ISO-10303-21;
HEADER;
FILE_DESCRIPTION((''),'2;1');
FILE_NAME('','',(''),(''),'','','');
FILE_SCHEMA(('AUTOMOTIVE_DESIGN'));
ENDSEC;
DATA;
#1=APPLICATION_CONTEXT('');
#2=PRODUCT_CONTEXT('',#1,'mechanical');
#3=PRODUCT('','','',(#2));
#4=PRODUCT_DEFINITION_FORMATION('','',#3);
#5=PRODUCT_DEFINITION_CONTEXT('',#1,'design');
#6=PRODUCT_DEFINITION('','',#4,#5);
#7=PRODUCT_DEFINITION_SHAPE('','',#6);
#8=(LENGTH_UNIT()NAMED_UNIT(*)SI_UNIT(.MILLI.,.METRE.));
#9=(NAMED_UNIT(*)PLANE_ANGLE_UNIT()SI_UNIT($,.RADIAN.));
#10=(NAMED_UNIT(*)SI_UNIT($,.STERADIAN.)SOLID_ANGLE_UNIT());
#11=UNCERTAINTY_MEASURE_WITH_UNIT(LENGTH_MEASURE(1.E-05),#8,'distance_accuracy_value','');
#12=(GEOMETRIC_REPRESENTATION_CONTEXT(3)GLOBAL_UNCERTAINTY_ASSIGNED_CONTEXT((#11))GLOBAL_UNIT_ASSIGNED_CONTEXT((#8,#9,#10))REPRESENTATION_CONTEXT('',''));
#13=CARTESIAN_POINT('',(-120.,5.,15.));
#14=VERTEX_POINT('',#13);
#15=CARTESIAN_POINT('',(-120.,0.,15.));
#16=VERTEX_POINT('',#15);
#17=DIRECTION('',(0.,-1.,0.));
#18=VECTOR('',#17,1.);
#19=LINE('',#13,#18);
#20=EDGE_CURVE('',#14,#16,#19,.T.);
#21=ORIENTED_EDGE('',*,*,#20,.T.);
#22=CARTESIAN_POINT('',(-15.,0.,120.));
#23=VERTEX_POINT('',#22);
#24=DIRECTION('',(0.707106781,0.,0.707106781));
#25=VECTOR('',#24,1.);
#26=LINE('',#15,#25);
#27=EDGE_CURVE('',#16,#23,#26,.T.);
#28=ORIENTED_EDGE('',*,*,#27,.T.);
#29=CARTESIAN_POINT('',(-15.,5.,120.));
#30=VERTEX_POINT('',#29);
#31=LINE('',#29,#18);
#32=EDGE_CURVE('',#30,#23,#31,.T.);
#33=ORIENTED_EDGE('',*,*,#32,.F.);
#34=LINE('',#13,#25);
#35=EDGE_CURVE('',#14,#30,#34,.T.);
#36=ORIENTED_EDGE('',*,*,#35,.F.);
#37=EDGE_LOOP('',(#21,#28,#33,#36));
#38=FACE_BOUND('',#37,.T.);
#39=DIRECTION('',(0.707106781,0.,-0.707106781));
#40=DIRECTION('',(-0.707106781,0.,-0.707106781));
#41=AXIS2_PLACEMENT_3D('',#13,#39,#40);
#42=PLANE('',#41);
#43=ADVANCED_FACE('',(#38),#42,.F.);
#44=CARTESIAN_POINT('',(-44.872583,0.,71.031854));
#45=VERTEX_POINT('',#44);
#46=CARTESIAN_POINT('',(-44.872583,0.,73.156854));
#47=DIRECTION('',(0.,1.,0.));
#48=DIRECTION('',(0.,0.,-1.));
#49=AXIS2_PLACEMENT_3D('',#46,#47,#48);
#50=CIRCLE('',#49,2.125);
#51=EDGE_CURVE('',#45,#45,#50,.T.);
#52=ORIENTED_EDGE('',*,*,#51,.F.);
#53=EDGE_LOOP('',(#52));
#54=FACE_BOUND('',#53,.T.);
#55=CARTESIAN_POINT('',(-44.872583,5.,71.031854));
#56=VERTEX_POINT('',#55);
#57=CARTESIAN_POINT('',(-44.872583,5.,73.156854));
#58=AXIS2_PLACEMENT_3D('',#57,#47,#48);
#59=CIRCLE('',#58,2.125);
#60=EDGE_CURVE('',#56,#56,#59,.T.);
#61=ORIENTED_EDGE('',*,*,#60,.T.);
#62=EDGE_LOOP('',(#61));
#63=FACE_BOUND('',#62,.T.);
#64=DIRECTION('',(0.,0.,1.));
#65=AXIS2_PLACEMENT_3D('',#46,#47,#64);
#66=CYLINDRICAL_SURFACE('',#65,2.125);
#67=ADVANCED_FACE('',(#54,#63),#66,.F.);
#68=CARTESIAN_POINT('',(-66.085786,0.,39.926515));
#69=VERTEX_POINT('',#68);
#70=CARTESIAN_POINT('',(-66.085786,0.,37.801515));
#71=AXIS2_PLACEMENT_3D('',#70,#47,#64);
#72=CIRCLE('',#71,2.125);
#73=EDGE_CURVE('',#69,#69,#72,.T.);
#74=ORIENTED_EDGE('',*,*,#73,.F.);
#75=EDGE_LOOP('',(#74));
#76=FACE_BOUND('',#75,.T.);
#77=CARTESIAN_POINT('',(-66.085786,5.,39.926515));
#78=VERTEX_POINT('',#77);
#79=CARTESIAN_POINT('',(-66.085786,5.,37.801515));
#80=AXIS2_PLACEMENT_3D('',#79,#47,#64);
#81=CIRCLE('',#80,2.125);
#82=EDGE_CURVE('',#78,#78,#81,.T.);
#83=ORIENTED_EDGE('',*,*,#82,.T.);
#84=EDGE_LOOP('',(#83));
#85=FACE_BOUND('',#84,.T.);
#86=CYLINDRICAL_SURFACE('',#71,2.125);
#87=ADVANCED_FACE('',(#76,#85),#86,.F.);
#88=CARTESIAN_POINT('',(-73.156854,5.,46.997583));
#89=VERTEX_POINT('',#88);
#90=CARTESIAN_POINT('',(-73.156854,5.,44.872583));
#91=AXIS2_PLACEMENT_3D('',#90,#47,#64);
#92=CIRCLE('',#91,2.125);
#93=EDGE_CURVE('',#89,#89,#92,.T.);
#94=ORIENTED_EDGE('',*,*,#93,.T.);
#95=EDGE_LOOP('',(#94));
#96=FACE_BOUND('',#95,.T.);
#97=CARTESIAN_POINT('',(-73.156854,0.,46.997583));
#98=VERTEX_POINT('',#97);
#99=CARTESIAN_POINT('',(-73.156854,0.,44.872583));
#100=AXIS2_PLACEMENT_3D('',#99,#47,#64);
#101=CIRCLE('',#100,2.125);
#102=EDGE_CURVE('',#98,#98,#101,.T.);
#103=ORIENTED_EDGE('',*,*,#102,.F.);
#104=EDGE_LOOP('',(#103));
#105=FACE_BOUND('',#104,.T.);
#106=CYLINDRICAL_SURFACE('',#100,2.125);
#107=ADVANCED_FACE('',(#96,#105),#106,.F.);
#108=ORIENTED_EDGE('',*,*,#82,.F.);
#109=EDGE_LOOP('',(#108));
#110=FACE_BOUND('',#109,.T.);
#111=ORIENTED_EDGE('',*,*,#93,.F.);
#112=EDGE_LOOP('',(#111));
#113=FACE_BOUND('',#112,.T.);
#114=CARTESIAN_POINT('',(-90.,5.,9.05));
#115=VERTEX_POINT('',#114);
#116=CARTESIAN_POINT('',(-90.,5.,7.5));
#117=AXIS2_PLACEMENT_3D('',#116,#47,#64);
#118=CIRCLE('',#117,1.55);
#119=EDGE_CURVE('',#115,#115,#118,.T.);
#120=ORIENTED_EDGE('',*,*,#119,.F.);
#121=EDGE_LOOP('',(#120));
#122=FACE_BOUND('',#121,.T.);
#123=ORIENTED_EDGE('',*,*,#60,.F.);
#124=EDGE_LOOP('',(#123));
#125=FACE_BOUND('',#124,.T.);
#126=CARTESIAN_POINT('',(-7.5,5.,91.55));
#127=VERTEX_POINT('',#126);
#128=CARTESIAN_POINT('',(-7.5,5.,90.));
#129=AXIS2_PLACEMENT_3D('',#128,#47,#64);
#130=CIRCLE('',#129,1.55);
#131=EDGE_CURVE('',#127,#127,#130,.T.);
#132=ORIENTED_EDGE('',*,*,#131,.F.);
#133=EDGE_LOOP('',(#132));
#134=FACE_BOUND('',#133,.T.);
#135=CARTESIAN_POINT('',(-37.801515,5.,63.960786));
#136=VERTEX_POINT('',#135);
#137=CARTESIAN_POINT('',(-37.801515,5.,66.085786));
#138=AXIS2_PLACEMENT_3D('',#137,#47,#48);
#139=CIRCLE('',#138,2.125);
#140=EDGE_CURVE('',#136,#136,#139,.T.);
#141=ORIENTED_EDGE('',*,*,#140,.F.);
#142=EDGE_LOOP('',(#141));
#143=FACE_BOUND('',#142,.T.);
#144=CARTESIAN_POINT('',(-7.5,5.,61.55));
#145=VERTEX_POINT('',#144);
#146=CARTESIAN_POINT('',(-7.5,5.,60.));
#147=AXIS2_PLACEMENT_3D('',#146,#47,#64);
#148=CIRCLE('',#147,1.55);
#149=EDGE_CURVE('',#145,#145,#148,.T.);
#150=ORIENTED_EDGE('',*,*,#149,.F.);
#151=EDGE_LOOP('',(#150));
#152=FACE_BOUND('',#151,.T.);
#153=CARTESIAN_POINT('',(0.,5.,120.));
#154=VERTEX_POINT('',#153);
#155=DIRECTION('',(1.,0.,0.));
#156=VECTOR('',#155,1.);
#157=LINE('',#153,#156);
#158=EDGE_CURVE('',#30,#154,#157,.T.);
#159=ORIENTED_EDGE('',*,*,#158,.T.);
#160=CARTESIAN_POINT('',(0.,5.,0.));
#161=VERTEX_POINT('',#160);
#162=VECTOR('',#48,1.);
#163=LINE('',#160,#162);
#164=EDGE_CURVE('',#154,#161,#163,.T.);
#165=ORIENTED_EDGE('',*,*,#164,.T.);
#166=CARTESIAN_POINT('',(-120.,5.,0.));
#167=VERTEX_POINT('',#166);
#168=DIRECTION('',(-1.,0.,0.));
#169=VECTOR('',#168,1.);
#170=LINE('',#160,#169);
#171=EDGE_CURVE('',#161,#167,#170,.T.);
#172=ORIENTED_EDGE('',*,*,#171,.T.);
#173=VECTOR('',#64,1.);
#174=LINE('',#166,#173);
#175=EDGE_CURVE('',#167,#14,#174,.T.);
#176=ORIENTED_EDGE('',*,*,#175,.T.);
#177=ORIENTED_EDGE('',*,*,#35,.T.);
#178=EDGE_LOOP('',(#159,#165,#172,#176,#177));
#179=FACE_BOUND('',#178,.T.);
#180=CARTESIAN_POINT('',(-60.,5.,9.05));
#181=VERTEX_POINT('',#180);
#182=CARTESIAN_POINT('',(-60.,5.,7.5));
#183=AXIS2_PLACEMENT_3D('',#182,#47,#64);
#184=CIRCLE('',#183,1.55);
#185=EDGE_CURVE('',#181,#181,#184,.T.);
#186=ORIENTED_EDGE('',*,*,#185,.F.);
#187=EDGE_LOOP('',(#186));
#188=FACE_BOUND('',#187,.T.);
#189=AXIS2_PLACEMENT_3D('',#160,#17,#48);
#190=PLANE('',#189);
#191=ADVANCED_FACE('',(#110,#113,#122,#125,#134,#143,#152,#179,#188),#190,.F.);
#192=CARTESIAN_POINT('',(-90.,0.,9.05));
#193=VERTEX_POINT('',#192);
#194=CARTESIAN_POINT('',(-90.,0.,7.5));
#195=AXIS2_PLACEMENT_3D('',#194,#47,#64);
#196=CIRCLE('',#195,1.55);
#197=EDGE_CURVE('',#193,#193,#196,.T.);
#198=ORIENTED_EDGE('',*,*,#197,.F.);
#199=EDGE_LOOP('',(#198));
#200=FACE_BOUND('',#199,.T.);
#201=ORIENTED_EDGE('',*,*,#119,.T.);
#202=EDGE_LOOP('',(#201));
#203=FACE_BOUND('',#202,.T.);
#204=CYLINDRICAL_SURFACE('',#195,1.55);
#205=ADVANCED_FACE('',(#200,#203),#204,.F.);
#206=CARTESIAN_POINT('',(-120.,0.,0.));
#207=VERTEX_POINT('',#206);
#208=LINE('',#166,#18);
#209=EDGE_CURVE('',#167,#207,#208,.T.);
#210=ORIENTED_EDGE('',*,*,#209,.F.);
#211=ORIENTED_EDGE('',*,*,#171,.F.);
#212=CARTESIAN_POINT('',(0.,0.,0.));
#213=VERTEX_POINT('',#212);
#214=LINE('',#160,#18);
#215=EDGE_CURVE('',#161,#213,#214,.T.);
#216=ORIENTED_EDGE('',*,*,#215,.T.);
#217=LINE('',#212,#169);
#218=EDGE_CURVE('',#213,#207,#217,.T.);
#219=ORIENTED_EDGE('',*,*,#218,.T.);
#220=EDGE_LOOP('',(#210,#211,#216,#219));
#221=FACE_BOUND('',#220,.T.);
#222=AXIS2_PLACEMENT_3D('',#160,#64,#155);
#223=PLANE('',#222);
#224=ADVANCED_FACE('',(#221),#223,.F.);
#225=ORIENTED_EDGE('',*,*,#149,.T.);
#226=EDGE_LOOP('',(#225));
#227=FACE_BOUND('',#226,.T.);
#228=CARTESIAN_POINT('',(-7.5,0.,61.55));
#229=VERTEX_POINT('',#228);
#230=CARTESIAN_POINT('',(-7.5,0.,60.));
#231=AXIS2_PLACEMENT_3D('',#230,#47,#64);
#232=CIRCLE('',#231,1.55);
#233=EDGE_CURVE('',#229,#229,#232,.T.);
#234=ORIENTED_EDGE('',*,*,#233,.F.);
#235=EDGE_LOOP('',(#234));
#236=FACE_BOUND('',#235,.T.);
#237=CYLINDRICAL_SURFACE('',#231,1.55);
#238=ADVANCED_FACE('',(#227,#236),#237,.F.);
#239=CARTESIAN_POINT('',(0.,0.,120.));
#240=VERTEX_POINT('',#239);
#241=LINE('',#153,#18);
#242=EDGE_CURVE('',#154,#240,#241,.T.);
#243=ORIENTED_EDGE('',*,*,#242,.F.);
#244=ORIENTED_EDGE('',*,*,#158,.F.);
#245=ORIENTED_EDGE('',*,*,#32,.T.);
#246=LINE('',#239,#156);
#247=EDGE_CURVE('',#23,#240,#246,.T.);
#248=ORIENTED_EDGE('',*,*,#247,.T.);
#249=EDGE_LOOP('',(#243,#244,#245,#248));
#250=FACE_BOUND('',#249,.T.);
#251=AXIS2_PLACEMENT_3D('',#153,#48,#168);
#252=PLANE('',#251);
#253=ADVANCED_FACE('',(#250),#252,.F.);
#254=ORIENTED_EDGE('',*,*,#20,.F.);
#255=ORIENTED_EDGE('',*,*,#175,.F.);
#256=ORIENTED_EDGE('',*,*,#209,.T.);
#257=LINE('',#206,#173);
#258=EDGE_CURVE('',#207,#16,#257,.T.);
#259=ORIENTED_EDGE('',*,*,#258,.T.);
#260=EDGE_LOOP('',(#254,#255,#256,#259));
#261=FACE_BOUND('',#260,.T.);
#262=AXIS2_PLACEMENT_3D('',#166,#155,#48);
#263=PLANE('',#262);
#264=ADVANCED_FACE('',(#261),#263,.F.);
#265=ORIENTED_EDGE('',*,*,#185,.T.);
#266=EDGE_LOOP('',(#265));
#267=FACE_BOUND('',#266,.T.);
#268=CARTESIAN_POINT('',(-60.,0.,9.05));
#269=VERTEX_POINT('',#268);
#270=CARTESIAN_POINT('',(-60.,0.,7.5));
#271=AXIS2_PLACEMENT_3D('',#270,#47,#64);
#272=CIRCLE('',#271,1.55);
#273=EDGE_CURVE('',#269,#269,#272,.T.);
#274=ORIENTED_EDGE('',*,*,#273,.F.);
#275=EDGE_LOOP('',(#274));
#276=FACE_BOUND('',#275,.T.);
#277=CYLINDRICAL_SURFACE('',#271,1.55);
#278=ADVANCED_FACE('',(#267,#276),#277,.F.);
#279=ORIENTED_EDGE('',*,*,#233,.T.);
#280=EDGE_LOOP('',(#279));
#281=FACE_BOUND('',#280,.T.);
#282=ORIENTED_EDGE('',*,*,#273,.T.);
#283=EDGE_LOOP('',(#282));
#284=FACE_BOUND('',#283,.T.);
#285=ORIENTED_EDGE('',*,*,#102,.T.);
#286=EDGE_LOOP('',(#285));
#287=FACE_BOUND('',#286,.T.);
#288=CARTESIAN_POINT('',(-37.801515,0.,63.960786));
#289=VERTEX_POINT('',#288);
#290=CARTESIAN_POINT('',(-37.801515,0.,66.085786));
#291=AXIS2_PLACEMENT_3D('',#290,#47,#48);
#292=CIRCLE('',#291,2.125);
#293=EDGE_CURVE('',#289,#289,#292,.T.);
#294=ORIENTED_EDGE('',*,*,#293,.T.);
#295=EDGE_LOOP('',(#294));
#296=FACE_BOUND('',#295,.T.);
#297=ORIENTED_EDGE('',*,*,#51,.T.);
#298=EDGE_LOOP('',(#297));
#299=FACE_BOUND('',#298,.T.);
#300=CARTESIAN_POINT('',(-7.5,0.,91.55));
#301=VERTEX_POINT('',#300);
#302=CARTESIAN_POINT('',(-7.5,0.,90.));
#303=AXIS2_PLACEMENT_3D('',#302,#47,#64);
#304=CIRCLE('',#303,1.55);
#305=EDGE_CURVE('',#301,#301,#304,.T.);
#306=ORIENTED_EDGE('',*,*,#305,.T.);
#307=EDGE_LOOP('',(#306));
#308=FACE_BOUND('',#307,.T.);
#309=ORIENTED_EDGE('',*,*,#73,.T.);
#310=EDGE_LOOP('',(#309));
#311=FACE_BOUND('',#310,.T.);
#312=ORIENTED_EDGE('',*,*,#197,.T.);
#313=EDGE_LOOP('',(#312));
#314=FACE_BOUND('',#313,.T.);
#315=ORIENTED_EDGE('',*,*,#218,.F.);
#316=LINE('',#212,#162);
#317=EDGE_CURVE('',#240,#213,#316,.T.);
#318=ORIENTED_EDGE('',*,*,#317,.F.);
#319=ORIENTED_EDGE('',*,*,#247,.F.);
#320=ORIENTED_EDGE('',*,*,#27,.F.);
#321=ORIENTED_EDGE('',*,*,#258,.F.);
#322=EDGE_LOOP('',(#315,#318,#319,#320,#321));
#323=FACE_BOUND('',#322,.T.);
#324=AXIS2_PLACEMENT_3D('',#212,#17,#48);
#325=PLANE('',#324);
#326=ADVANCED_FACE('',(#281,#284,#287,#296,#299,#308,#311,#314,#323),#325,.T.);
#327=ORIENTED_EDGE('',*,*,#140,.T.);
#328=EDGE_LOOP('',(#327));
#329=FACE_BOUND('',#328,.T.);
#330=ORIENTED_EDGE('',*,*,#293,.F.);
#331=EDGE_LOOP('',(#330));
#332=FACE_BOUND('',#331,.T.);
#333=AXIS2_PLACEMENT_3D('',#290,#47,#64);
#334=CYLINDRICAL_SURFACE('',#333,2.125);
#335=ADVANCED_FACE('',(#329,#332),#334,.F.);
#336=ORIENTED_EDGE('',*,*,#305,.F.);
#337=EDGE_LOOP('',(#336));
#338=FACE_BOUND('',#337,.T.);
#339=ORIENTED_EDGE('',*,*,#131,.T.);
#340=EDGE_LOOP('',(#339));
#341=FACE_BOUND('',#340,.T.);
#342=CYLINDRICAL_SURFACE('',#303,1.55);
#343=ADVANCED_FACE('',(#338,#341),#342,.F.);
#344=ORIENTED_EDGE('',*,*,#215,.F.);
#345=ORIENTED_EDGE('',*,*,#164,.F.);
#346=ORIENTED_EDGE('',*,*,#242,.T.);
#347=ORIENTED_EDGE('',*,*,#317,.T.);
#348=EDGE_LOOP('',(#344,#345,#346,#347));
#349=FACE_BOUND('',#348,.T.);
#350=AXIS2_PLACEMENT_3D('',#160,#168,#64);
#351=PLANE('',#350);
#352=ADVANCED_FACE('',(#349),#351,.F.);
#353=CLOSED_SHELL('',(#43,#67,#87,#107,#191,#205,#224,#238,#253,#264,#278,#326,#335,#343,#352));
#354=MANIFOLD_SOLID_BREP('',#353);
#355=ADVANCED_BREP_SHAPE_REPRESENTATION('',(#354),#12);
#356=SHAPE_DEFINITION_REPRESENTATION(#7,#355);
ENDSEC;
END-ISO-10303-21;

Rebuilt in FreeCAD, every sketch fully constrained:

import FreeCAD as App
import Part
import Sketcher

V = App.Vector
Q = App.Units.Quantity

doc = App.newDocument("Part")
body = doc.addObject("PartDesign::Body", "Body")

sketch1 = doc.addObject("Sketcher::SketchObject", "Sketch")
body.addObject(sketch1)
sketch1.AttachmentSupport = (doc.XZ_Plane, [""])
sketch1.MapMode = "FlatFace"
sketch1.addGeometry([
    Part.LineSegment(V(-120, 15, 0), V(-15, 120, 0)),
    Part.LineSegment(V(-15, 120, 0), V(0, 120, 0)),
    Part.LineSegment(V(0, 120, 0), V(0, 0, 0)),
    Part.LineSegment(V(0, 0, 0), V(-120, 0, 0)),
    Part.LineSegment(V(-120, 0, 0), V(-120, 15, 0)),
], False)
sketch1.addConstraint([
    Sketcher.Constraint("Coincident", 0, 2, 1, 1),
    Sketcher.Constraint("Coincident", 1, 2, 2, 1),
    Sketcher.Constraint("Coincident", 2, 2, 3, 1),
    Sketcher.Constraint("Coincident", 3, 2, 4, 1),
    Sketcher.Constraint("Coincident", 4, 2, 0, 1),
    Sketcher.Constraint("Horizontal", 1),
    Sketcher.Constraint("Vertical", 2),
    Sketcher.Constraint("Horizontal", 3),
    Sketcher.Constraint("Vertical", 4),
    Sketcher.Constraint("Coincident", 2, 2, -1, 1),
    Sketcher.Constraint("Equal", 3, 2),
    Sketcher.Constraint("Equal", 1, 4),
    Sketcher.Constraint("DistanceX", 1, 1, 1, 2, Q("15 mm")),
    Sketcher.Constraint("DistanceX", 3, 2, 3, 1, Q("120 mm")),
])
pad1 = doc.addObject("PartDesign::Pad", "Pad")
body.addObject(pad1)
pad1.Profile = sketch1
pad1.Length = 5
pad1.Reversed = True

sketch2 = doc.addObject("Sketcher::SketchObject", "Sketch001")
body.addObject(sketch2)
sketch2.AttachmentSupport = (doc.XZ_Plane, [""])
sketch2.MapMode = "FlatFace"
sketch2.AttachmentOffset = App.Placement(V(0, 0, -5), App.Rotation())
sketch2.addGeometry([
    Part.Circle(V(-90, 7.5, 0), V(0, 0, 1), 1.6),
    Part.Circle(V(-60, 7.5, 0), V(0, 0, 1), 1.6),
    Part.Circle(V(-7.5, 90, 0), V(0, 0, 1), 1.6),
    Part.Circle(V(-7.5, 60, 0), V(0, 0, 1), 1.6),
], False)
sketch2.addConstraint([
    Sketcher.Constraint("Equal", 0, 1),
    Sketcher.Constraint("Equal", 1, 2),
    Sketcher.Constraint("Equal", 2, 3),
    Sketcher.Constraint("Horizontal", 0, 3, 1, 3),
    Sketcher.Constraint("Vertical", 2, 3, 3, 3),
    Sketcher.Constraint("Diameter", 0, Q("3.1 mm")),
    Sketcher.Constraint("DistanceX", 0, 3, -1, 1, Q("90 mm")),
    Sketcher.Constraint("DistanceX", 1, 3, -1, 1, Q("60 mm")),
    Sketcher.Constraint("DistanceY", -1, 1, 2, 3, Q("90 mm")),
    Sketcher.Constraint("DistanceY", -1, 1, 3, 3, Q("60 mm")),
    Sketcher.Constraint("DistanceY", -1, 1, 0, 3, Q("7.5 mm")),
    Sketcher.Constraint("DistanceX", 2, 3, -1, 1, Q("7.5 mm")),
])
pocket1 = doc.addObject("PartDesign::Pocket", "Pocket")
body.addObject(pocket1)
pocket1.Profile = sketch2
pocket1.Length = 5
pocket1.Reversed = True

sketch3 = doc.addObject("Sketcher::SketchObject", "Sketch002")
body.addObject(sketch3)
sketch3.AttachmentSupport = (doc.XZ_Plane, [""])
sketch3.MapMode = "FlatFace"
sketch3.AttachmentOffset = App.Placement(V(0, 0, -5), App.Rotation())
sketch3.addGeometry([
    Part.Circle(V(-66.1, 37.8, 0), V(0, 0, 1), 2.1),
    Part.Circle(V(-73.2, 44.9, 0), V(0, 0, 1), 2.1),
    Part.Circle(V(-44.9, 73.2, 0), V(0, 0, 1), 2.1),
    Part.Circle(V(-37.8, 66.1, 0), V(0, 0, 1), 2.1),
], False)
sketch3.addConstraint([
    Sketcher.Constraint("Equal", 0, 1),
    Sketcher.Constraint("Equal", 1, 2),
    Sketcher.Constraint("Equal", 2, 3),
    Sketcher.Constraint("Diameter", 0, Q("4.25 mm")),
    Sketcher.Constraint("DistanceX", 1, 3, 2, 3, Q("28.284271 mm")),
    Sketcher.Constraint("DistanceY", 1, 3, 2, 3, Q("28.284271 mm")),
    Sketcher.Constraint("DistanceY", 0, 3, 2, 3, Q("35.355339 mm")),
    Sketcher.Constraint("DistanceX", 0, 3, 3, 3, Q("28.284271 mm")),
    Sketcher.Constraint("DistanceY", 0, 3, 3, 3, Q("28.284271 mm")),
    Sketcher.Constraint("DistanceX", 1, 3, 3, 3, Q("35.355339 mm")),
    Sketcher.Constraint("DistanceX", 0, 3, -1, 1, Q("66.085786 mm")),
    Sketcher.Constraint("DistanceY", -1, 1, 0, 3, Q("37.801515 mm")),
])
pocket2 = doc.addObject("PartDesign::Pocket", "Pocket001")
body.addObject(pocket2)
pocket2.Profile = sketch3
pocket2.Length = 5
pocket2.Reversed = True

doc.recompute()
